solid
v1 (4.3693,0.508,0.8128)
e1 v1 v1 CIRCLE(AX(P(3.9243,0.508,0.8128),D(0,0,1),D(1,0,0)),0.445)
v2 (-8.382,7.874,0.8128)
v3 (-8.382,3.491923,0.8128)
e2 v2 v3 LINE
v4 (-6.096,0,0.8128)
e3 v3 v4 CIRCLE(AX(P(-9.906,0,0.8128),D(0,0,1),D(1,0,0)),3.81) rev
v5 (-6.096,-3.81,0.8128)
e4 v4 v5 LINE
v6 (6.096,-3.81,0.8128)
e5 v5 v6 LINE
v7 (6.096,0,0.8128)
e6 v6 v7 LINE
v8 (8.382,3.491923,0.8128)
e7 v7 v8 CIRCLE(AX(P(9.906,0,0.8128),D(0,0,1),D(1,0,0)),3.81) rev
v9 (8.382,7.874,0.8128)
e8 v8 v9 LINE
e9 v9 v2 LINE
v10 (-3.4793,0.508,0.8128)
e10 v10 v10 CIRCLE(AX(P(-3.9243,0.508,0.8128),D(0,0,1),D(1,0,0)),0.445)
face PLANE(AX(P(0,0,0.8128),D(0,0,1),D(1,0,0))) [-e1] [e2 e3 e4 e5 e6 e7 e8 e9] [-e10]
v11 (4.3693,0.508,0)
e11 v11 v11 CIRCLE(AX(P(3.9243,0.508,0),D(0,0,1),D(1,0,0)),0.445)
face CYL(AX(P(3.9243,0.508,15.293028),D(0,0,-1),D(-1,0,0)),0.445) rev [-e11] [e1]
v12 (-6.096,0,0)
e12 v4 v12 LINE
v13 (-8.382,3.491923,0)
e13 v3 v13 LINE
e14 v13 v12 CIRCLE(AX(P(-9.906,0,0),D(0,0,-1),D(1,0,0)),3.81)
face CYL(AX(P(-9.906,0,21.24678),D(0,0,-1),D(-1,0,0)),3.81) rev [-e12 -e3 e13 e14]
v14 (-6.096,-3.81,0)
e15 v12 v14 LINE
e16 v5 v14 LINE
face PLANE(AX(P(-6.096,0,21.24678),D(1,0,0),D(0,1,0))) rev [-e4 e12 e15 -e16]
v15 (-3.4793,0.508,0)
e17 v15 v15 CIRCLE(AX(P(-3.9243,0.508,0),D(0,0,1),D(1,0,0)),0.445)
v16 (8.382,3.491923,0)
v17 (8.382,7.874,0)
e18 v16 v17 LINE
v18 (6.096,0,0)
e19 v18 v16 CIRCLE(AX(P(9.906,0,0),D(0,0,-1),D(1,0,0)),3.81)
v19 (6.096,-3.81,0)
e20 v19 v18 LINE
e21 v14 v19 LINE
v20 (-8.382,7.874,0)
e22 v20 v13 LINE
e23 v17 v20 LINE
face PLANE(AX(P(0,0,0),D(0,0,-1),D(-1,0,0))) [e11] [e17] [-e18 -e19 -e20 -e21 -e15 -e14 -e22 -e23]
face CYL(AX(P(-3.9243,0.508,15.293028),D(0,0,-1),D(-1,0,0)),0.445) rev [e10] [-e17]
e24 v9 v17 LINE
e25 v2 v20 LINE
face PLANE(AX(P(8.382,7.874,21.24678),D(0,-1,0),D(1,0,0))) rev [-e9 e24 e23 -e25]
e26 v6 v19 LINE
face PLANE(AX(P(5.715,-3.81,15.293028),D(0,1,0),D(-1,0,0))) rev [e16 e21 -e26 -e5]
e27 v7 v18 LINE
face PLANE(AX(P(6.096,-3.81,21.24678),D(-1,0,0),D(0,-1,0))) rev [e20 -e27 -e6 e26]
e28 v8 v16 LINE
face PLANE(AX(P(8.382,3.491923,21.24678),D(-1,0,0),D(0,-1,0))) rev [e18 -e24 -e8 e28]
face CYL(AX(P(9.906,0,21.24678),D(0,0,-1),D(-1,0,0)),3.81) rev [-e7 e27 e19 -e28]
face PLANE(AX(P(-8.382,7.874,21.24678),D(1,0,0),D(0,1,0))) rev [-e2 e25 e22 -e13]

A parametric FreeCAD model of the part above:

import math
import FreeCAD as App
import Part
import Sketcher
from FreeCAD import Vector
Q = App.Units.Quantity

doc = App.newDocument("Part")
body = doc.addObject("PartDesign::Body", "Body")

# Sketch on XY plane
sketch1 = body.newObject("Sketcher::SketchObject", "Sketch")
sketch1.AttachmentSupport = (doc.getObject("XY_Plane"), [""])
sketch1.MapMode = "FlatFace"
sketch1.addGeometry(Part.LineSegment(Vector(-5.71, 5.08, 0), Vector(-5.71, -3.81, 0)), False)
sketch1.addGeometry(Part.LineSegment(Vector(-5.71, -3.81, 0), Vector(5.71, -3.81, 0)), False)
sketch1.addGeometry(Part.LineSegment(Vector(5.71, -3.81, 0), Vector(5.71, 5.08, 0)), False)
sketch1.addGeometry(Part.LineSegment(Vector(5.71, 5.08, 0), Vector(-5.71, 5.08, 0)), False)
sketch1.addGeometry(Part.Circle(Vector(-3.92, 0.51, 0), Vector(0, 0, 1), 0.45), False)
sketch1.addGeometry(Part.Circle(Vector(3.92, 0.51, 0), Vector(0, 0, 1), 0.45), False)
sketch1.addConstraint(Sketcher.Constraint("Coincident", 0, 2, 1, 1))
sketch1.addConstraint(Sketcher.Constraint("Coincident", 1, 2, 2, 1))
sketch1.addConstraint(Sketcher.Constraint("Coincident", 2, 2, 3, 1))
sketch1.addConstraint(Sketcher.Constraint("Coincident", 3, 2, 0, 1))
sketch1.addConstraint(Sketcher.Constraint("Vertical", 0))
sketch1.addConstraint(Sketcher.Constraint("Horizontal", 1))
sketch1.addConstraint(Sketcher.Constraint("Vertical", 2))
sketch1.addConstraint(Sketcher.Constraint("Horizontal", 3))
sketch1.addConstraint(Sketcher.Constraint("Equal", 4, 5))
sketch1.addConstraint(Sketcher.Constraint("Symmetric", 4, 3, 5, 3, -2))
sketch1.addConstraint(Sketcher.Constraint("DistanceX", 1, 1, 1, 2, Q("0.45 in")))
sketch1.addConstraint(Sketcher.Constraint("DistanceY", 0, 2, 0, 1, Q("0.35 in")))
sketch1.addConstraint(Sketcher.Constraint("DistanceY", -1, 1, 2, 2, Q("0.2 in")))
sketch1.addConstraint(Sketcher.Constraint("Diameter", 4, Q("0.89 mm")))
sketch1.addConstraint(Sketcher.Constraint("DistanceY", -1, 1, 4, 3, Q("0.02 in")))
sketch1.addConstraint(Sketcher.Constraint("DistanceX", 0, 2, -1, 1, Q("0.225 in")))
sketch1.addConstraint(Sketcher.Constraint("DistanceX", 4, 3, 5, 3, Q("0.309 in")))
pad1 = body.newObject("PartDesign::Pad", "Pad")
pad1.Profile = sketch1
pad1.Length = Q("0.032 in")

# Sketch on XY plane
sketch2 = body.newObject("Sketcher::SketchObject", "Sketch001")
sketch2.AttachmentSupport = (doc.getObject("XY_Plane"), [""])
sketch2.MapMode = "FlatFace"
sketch2.addGeometry(Part.LineSegment(Vector(8.38, 7.87, 0), Vector(-8.38, 7.87, 0)), False)
sketch2.addGeometry(Part.LineSegment(Vector(-8.38, 7.87, 0), Vector(-8.38, 3.49, 0)), False)
sketch2.addGeometry(Part.ArcOfCircle(Part.Circle(Vector(-9.91, 0, 0), Vector(0, 0, 1), 3.81), math.radians(0), math.radians(66)), False)
sketch2.addGeometry(Part.LineSegment(Vector(-6.1, 0, 0), Vector(-6.1, -3.81, 0)), False)
sketch2.addGeometry(Part.LineSegment(Vector(-6.1, -3.81, 0), Vector(6.1, -3.81, 0)), False)
sketch2.addGeometry(Part.LineSegment(Vector(6.1, -3.81, 0), Vector(6.1, 0, 0)), False)
sketch2.addGeometry(Part.ArcOfCircle(Part.Circle(Vector(9.91, 0, 0), Vector(0, 0, 1), 3.81), math.radians(114), math.radians(180)), False)
sketch2.addGeometry(Part.LineSegment(Vector(8.38, 3.49, 0), Vector(8.38, 7.87, 0)), False)
sketch2.addGeometry(Part.Circle(Vector(-3.92, 0.51, 0), Vector(0, 0, 1), 0.45), False)
sketch2.addGeometry(Part.Circle(Vector(3.92, 0.51, 0), Vector(0, 0, 1), 0.45), False)
sketch2.addConstraint(Sketcher.Constraint("Coincident", 0, 2, 1, 1))
sketch2.addConstraint(Sketcher.Constraint("Coincident", 1, 2, 2, 2))
sketch2.addConstraint(Sketcher.Constraint("Tangent", 2, 1, 3, 1))
sketch2.addConstraint(Sketcher.Constraint("Coincident", 3, 2, 4, 1))
sketch2.addConstraint(Sketcher.Constraint("Coincident", 4, 2, 5, 1))
sketch2.addConstraint(Sketcher.Constraint("Tangent", 5, 2, 6, 2))
sketch2.addConstraint(Sketcher.Constraint("Coincident", 6, 1, 7, 1))
sketch2.addConstraint(Sketcher.Constraint("Coincident", 7, 2, 0, 1))
sketch2.addConstraint(Sketcher.Constraint("Horizontal", 0))
sketch2.addConstraint(Sketcher.Constraint("Vertical", 1))
sketch2.addConstraint(Sketcher.Constraint("Vertical", 3))
sketch2.addConstraint(Sketcher.Constraint("Horizontal", 4))
sketch2.addConstraint(Sketcher.Constraint("Vertical", 5))
sketch2.addConstraint(Sketcher.Constraint("Vertical", 7))
sketch2.addConstraint(Sketcher.Constraint("Equal", 2, 6))
sketch2.addConstraint(Sketcher.Constraint("Equal", 8, 9))
sketch2.addConstraint(Sketcher.Constraint("Symmetric", 2, 3, 6, 3, -1, 1))
sketch2.addConstraint(Sketcher.Constraint("Symmetric", 8, 3, 9, 3, -2))
sketch2.addConstraint(Sketcher.Constraint("Symmetric", 1, 2, 6, 1, -2))
sketch2.addConstraint(Sketcher.Constraint("Radius", 2, Q("0.15 in")))
sketch2.addConstraint(Sketcher.Constraint("DistanceX", 0, 2, 0, 1, Q("0.66 in")))
sketch2.addConstraint(Sketcher.Constraint("DistanceX", 4, 1, 4, 2, Q("0.48 in")))
sketch2.addConstraint(Sketcher.Constraint("DistanceY", 3, 2, 3, 1, Q("0.15 in")))
sketch2.addConstraint(Sketcher.Constraint("Diameter", 8, Q("0.89 mm")))
sketch2.addConstraint(Sketcher.Constraint("DistanceY", -1, 1, 8, 3, Q("0.02 in")))
sketch2.addConstraint(Sketcher.Constraint("DistanceY", -1, 1, 0, 2, Q("0.31 in")))
sketch2.addConstraint(Sketcher.Constraint("DistanceX", 8, 3, 9, 3, Q("0.309 in")))
pad2 = body.newObject("PartDesign::Pad", "Pad001")
pad2.Profile = sketch2
pad2.Length = Q("0.032 in")

doc.recompute()
